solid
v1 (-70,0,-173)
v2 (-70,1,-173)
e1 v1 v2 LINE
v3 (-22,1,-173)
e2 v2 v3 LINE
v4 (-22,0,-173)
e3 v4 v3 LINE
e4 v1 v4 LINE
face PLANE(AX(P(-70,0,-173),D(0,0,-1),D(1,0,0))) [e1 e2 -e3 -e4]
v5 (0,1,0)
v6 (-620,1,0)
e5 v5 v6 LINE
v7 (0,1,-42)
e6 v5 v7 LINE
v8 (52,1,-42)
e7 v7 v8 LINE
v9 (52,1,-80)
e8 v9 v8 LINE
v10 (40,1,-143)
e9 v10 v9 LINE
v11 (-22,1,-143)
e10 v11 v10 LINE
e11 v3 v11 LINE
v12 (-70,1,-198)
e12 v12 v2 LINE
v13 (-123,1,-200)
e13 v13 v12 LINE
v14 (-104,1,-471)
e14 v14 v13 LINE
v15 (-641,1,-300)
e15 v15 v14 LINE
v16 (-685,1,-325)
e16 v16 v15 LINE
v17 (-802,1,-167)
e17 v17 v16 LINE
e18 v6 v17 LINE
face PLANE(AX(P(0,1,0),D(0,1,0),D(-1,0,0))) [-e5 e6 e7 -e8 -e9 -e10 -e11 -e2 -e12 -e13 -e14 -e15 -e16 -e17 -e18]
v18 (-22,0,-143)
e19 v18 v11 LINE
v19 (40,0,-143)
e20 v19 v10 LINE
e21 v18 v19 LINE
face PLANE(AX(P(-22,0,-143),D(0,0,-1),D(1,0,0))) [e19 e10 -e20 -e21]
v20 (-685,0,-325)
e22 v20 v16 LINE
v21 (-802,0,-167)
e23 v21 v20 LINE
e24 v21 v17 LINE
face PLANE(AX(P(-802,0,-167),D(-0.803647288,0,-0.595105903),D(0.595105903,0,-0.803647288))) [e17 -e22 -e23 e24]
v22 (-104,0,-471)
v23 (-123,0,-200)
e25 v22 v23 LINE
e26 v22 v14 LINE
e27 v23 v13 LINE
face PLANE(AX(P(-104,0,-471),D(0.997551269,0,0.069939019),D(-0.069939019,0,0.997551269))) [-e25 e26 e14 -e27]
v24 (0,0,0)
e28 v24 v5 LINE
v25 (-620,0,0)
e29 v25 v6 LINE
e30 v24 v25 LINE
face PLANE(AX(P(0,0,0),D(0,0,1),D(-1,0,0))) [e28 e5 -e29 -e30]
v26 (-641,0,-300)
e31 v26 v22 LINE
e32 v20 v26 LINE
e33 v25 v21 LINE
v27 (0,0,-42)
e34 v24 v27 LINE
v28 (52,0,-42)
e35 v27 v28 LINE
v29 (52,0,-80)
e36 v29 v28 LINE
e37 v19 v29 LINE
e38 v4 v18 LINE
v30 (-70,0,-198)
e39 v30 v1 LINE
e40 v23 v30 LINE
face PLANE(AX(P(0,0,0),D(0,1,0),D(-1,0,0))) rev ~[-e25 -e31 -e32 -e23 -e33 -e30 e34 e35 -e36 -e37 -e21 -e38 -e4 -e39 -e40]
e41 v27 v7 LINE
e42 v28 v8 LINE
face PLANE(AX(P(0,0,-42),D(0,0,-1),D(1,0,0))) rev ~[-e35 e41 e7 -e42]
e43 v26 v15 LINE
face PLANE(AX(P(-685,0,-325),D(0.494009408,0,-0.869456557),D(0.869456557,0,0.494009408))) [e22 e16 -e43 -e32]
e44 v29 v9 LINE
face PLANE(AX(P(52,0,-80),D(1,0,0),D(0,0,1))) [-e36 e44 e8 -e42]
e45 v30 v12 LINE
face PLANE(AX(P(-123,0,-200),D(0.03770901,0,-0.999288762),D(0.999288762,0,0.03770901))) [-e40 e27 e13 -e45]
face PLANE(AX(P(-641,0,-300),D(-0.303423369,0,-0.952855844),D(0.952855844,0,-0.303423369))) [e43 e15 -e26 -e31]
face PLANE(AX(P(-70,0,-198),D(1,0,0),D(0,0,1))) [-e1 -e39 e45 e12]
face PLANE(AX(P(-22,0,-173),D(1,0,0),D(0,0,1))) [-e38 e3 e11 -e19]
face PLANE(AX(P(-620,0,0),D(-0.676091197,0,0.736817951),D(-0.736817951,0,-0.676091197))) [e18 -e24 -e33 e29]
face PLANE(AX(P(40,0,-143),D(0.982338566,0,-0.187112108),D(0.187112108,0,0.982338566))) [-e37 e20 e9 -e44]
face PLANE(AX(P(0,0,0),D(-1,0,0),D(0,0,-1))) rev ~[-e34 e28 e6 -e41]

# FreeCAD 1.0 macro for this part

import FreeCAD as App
import Part
import Sketcher
from FreeCAD import Vector


def add_polygon(sketch, points):
    """Adds a closed chain of lines whose ends are joined by coincident constraints."""
    first, n = sketch.GeometryCount, len(points)
    for a, b in zip(points, points[1:] + points[:1]):
        sketch.addGeometry(Part.LineSegment(App.Vector(*a, 0), App.Vector(*b, 0)), False)
    for i in range(n):
        sketch.addConstraint(Sketcher.Constraint("Coincident", first + i, 2, first + (i + 1) % n, 1))

doc = App.newDocument("Part")
params = doc.addObject("Spreadsheet::Sheet", "Params")
for row, (alias, value) in enumerate([
    ("sketch1_width", "620 mm"),
    ("sketch1_width2", "52 mm"),
    ("sketch1_height", "42 mm"),
    ("pad1_length", "1 mm"),
], start=1):
    params.set(f"A{row}", alias)
    params.set(f"B{row}", "=" + value)
    params.setAlias(f"B{row}", alias)

body = doc.addObject("PartDesign::Body", "Body")

# Sketch on XZ plane
sketch1 = body.newObject("Sketcher::SketchObject", "Sketch")
sketch1.AttachmentSupport = (doc.getObject("XZ_Plane"), [""])
sketch1.MapMode = "FlatFace"
add_polygon(sketch1, [(-620, 0), (0, 0), (0, -42), (52, -42), (52, -80), (40, -143), (-22, -143), (-22, -173), (-70, -173), (-70, -198), (-123, -200), (-104, -471), (-641, -300), (-685, -325), (-802, -167)])  # lines 0-14
sketch1.addConstraint(Sketcher.Constraint("Horizontal", 0))
sketch1.addConstraint(Sketcher.Constraint("Vertical", 1))
sketch1.addConstraint(Sketcher.Constraint("Horizontal", 2))
sketch1.addConstraint(Sketcher.Constraint("Vertical", 3))
sketch1.addConstraint(Sketcher.Constraint("Horizontal", 5))
sketch1.addConstraint(Sketcher.Constraint("Vertical", 6))
sketch1.addConstraint(Sketcher.Constraint("Horizontal", 7))
sketch1.addConstraint(Sketcher.Constraint("Vertical", 8))
sketch1.addConstraint(Sketcher.Constraint("Coincident", 0, 2, -1, 1))
sketch1.addConstraint(Sketcher.Constraint("DistanceX", 0, 1, 0, 2, 620.0))
sketch1.addConstraint(Sketcher.Constraint("DistanceX", 2, 1, 2, 2, 52.0))
sketch1.addConstraint(Sketcher.Constraint("DistanceY", 1, 2, 1, 1, 42.0))
sketch1.addConstraint(Sketcher.Constraint("DistanceY", 3, 2, -1, 1, 80.0))
sketch1.addConstraint(Sketcher.Constraint("DistanceX", -1, 1, 4, 2, 40.0))
sketch1.addConstraint(Sketcher.Constraint("DistanceY", 4, 2, -1, 1, 143.0))
sketch1.addConstraint(Sketcher.Constraint("DistanceX", 5, 2, -1, 1, 22.0))
sketch1.addConstraint(Sketcher.Constraint("DistanceY", 6, 2, -1, 1, 173.0))
sketch1.addConstraint(Sketcher.Constraint("DistanceX", 7, 2, -1, 1, 70.0))
sketch1.addConstraint(Sketcher.Constraint("DistanceY", 8, 2, -1, 1, 198.0))
sketch1.addConstraint(Sketcher.Constraint("DistanceX", 9, 2, -1, 1, 123.0))
sketch1.addConstraint(Sketcher.Constraint("DistanceY", 9, 2, -1, 1, 200.0))
sketch1.addConstraint(Sketcher.Constraint("DistanceX", 10, 2, -1, 1, 104.0))
sketch1.addConstraint(Sketcher.Constraint("DistanceY", 10, 2, -1, 1, 471.0))
sketch1.addConstraint(Sketcher.Constraint("DistanceX", 11, 2, -1, 1, 641.0))
sketch1.addConstraint(Sketcher.Constraint("DistanceY", 11, 2, -1, 1, 300.0))
sketch1.addConstraint(Sketcher.Constraint("DistanceX", 12, 2, -1, 1, 685.0))
sketch1.addConstraint(Sketcher.Constraint("DistanceY", 12, 2, -1, 1, 325.0))
sketch1.addConstraint(Sketcher.Constraint("DistanceX", 13, 2, -1, 1, 802.0))
sketch1.addConstraint(Sketcher.Constraint("DistanceY", 13, 2, -1, 1, 167.0))
sketch1.setExpression("Constraints[24]", "Params.sketch1_width")
sketch1.setExpression("Constraints[25]", "Params.sketch1_width2")
sketch1.setExpression("Constraints[26]", "Params.sketch1_height")
pad1 = body.newObject("PartDesign::Pad", "Pad")
pad1.Profile = sketch1
pad1.setExpression("Length", "Params.pad1_length")
pad1.Reversed = True

doc.recompute()
